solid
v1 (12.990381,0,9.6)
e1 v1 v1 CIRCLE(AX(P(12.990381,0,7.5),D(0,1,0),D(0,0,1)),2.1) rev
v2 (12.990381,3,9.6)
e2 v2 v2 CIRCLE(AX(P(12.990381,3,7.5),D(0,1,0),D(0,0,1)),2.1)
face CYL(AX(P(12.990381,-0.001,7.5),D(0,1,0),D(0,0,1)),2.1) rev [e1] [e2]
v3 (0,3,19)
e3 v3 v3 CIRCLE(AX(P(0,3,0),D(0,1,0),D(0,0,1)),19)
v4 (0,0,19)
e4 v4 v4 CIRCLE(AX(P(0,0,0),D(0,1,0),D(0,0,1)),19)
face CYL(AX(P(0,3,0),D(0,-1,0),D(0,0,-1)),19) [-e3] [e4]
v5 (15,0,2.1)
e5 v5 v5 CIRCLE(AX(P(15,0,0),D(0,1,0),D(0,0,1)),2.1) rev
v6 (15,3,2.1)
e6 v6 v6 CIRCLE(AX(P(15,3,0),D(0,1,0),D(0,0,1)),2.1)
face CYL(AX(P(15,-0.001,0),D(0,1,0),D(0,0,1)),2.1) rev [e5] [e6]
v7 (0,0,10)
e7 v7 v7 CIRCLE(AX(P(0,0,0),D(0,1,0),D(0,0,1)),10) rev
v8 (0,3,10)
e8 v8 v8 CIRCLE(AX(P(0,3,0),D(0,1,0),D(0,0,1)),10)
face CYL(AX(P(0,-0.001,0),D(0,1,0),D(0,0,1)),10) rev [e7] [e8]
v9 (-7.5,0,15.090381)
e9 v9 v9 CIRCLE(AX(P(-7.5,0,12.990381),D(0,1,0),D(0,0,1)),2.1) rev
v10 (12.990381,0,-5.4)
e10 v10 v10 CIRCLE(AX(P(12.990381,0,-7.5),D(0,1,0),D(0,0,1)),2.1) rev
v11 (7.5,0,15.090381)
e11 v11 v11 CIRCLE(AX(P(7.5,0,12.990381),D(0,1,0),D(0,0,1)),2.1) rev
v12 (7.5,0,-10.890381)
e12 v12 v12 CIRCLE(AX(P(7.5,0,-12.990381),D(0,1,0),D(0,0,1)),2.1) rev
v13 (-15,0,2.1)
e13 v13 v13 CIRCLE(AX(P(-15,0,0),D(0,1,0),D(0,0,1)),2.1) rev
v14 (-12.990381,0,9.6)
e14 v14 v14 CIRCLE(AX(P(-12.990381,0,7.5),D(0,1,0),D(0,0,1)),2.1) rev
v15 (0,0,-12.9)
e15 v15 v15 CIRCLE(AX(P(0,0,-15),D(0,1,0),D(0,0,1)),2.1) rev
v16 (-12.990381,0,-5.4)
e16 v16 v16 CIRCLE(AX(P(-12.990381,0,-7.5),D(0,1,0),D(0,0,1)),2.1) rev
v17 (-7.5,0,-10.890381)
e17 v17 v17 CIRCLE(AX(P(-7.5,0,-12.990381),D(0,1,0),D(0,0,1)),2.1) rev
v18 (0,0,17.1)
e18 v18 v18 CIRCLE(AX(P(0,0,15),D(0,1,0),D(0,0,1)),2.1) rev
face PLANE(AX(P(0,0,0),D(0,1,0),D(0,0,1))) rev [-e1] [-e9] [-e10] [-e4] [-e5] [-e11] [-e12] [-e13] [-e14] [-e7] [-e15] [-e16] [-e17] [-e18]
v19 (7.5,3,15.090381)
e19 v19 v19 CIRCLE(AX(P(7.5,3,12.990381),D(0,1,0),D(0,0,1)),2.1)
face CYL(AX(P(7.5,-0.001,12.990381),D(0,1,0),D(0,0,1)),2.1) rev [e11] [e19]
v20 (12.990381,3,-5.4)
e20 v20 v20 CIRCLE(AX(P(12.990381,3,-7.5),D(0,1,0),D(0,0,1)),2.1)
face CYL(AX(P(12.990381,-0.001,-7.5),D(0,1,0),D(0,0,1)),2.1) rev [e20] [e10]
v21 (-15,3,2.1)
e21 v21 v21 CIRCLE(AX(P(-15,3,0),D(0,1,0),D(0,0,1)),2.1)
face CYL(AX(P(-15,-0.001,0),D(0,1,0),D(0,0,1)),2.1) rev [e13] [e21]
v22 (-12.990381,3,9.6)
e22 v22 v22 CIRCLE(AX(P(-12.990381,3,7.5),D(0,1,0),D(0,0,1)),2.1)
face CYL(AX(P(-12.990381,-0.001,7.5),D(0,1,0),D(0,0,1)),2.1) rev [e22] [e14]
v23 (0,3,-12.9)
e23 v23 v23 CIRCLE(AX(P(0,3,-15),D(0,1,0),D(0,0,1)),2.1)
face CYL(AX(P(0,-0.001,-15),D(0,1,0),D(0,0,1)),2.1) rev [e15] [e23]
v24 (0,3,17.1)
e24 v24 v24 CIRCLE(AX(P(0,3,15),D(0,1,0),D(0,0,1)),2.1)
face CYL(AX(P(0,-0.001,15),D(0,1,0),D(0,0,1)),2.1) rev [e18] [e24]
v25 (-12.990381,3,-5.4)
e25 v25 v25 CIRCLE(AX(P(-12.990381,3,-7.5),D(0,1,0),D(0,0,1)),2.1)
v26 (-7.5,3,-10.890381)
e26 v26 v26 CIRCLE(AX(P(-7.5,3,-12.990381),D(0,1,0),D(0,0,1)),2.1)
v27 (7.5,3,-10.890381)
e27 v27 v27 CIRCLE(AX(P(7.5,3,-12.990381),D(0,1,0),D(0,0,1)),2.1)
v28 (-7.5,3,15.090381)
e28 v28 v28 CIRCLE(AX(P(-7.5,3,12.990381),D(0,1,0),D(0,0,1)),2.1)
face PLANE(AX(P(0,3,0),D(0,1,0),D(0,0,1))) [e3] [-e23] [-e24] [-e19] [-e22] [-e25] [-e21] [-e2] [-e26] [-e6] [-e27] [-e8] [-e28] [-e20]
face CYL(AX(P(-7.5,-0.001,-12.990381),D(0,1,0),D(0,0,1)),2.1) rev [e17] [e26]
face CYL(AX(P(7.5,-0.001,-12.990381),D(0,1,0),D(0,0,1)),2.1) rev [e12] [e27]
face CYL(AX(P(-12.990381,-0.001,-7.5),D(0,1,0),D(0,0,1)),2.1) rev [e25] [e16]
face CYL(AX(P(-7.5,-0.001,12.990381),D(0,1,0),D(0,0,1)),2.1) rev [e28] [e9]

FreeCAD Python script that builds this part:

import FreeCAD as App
import Part
import Sketcher
Q = App.Units.Quantity

doc = App.newDocument("Part")
params = doc.addObject("Spreadsheet::Sheet", "Params")
for row, (alias, value) in enumerate([
    ("sketch1_diameter", "38 mm"),
    ("pad1_length", "3 mm"),
    ("sketch2_diameter", "4.2 mm"),
    ("sketch3_diameter", "4.2 mm"),
    ("sketch4_diameter", "4.2 mm"),
    ("sketch5_diameter", "4.2 mm"),
    ("sketch6_diameter", "4.2 mm"),
    ("sketch7_diameter", "4.2 mm"),
    ("sketch8_diameter", "4.2 mm"),
    ("sketch9_diameter", "4.2 mm"),
    ("sketch10_diameter", "4.2 mm"),
    ("sketch11_diameter", "4.2 mm"),
    ("sketch12_diameter", "4.2 mm"),
    ("sketch13_diameter", "4.2 mm"),
    ("sketch14_diameter", "20 mm"),
], start=1):
    params.set(f"A{row}", alias)
    params.set(f"B{row}", "=" + value)
    params.setAlias(f"B{row}", alias)

body = doc.addObject("PartDesign::Body", "Body")

# Sketch on XZ plane
sketch1 = body.newObject("Sketcher::SketchObject", "Sketch")
sketch1.AttachmentSupport = (doc.getObject("XZ_Plane"), [""])
sketch1.MapMode = "FlatFace"
sketch1.addGeometry(Part.Circle(App.Vector(0, 0, 0), App.Vector(0, 0, 1), 19), False)
sketch1.addConstraint([
    Sketcher.Constraint("Coincident", 0, 3, -1, 1),
    Sketcher.Constraint("Diameter", 0, Q("38 mm")),
])
sketch1.setExpression("Constraints[1]", "Params.sketch1_diameter")
pad1 = body.newObject("PartDesign::Pad", "Pad")
pad1.Profile = sketch1
pad1.setExpression("Length", "Params.pad1_length")
pad1.Reversed = True

# Sketch on XZ plane
sketch2 = body.newObject("Sketcher::SketchObject", "Sketch001")
sketch2.AttachmentSupport = (doc.getObject("XZ_Plane"), [""])
sketch2.MapMode = "FlatFace"
sketch2.AttachmentOffset = App.Placement(App.Vector(0, 0, -3), App.Rotation())
sketch2.addGeometry(Part.Circle(App.Vector(0, -15, 0), App.Vector(0, 0, 1), 2.1), False)
sketch2.addConstraint([
    Sketcher.Constraint("PointOnObject", 0, 3, -2),
    Sketcher.Constraint("Diameter", 0, Q("4.2 mm")),
    Sketcher.Constraint("DistanceY", 0, 3, -1, 1, Q("15 mm")),
])
sketch2.setExpression("Constraints[1]", "Params.sketch2_diameter")
pocket1 = body.newObject("PartDesign::Pocket", "Pocket")
pocket1.Profile = sketch2
pocket1.Type = "UpToFirst"
pocket1.Reversed = True

# Sketch on XZ plane
sketch3 = body.newObject("Sketcher::SketchObject", "Sketch002")
sketch3.AttachmentSupport = (doc.getObject("XZ_Plane"), [""])
sketch3.MapMode = "FlatFace"
sketch3.AttachmentOffset = App.Placement(App.Vector(0, 0, -3), App.Rotation())
sketch3.addGeometry(Part.Circle(App.Vector(7.5, -12.990381, 0), App.Vector(0, 0, 1), 2.1), False)
sketch3.addConstraint([
    Sketcher.Constraint("Diameter", 0, Q("4.2 mm")),
    Sketcher.Constraint("DistanceX", -1, 1, 0, 3, Q("7.5 mm")),
    Sketcher.Constraint("DistanceY", 0, 3, -1, 1, Q("12.990381 mm")),
])
sketch3.setExpression("Constraints[0]", "Params.sketch3_diameter")
pocket2 = body.newObject("PartDesign::Pocket", "Pocket001")
pocket2.Profile = sketch3
pocket2.Type = "UpToFirst"
pocket2.Reversed = True

# Sketch on XZ plane
sketch4 = body.newObject("Sketcher::SketchObject", "Sketch003")
sketch4.AttachmentSupport = (doc.getObject("XZ_Plane"), [""])
sketch4.MapMode = "FlatFace"
sketch4.AttachmentOffset = App.Placement(App.Vector(0, 0, -3), App.Rotation())
sketch4.addGeometry(Part.Circle(App.Vector(12.990381, -7.5, 0), App.Vector(0, 0, 1), 2.1), False)
sketch4.addConstraint([
    Sketcher.Constraint("Diameter", 0, Q("4.2 mm")),
    Sketcher.Constraint("DistanceY", 0, 3, -1, 1, Q("7.5 mm")),
    Sketcher.Constraint("DistanceX", -1, 1, 0, 3, Q("12.990381 mm")),
])
sketch4.setExpression("Constraints[0]", "Params.sketch4_diameter")
pocket3 = body.newObject("PartDesign::Pocket", "Pocket002")
pocket3.Profile = sketch4
pocket3.Type = "UpToFirst"
pocket3.Reversed = True

# Sketch on XZ plane
sketch5 = body.newObject("Sketcher::SketchObject", "Sketch004")
sketch5.AttachmentSupport = (doc.getObject("XZ_Plane"), [""])
sketch5.MapMode = "FlatFace"
sketch5.AttachmentOffset = App.Placement(App.Vector(0, 0, -3), App.Rotation())
sketch5.addGeometry(Part.Circle(App.Vector(15, 0, 0), App.Vector(0, 0, 1), 2.1), False)
sketch5.addConstraint([
    Sketcher.Constraint("PointOnObject", 0, 3, -1),
    Sketcher.Constraint("Diameter", 0, Q("4.2 mm")),
    Sketcher.Constraint("DistanceX", -1, 1, 0, 3, Q("15 mm")),
])
sketch5.setExpression("Constraints[1]", "Params.sketch5_diameter")
pocket4 = body.newObject("PartDesign::Pocket", "Pocket003")
pocket4.Profile = sketch5
pocket4.Type = "UpToFirst"
pocket4.Reversed = True

# Sketch on XZ plane
sketch6 = body.newObject("Sketcher::SketchObject", "Sketch005")
sketch6.AttachmentSupport = (doc.getObject("XZ_Plane"), [""])
sketch6.MapMode = "FlatFace"
sketch6.AttachmentOffset = App.Placement(App.Vector(0, 0, -3), App.Rotation())
sketch6.addGeometry(Part.Circle(App.Vector(12.990381, 7.5, 0), App.Vector(0, 0, 1), 2.1), False)
sketch6.addConstraint([
    Sketcher.Constraint("Diameter", 0, Q("4.2 mm")),
    Sketcher.Constraint("DistanceY", -1, 1, 0, 3, Q("7.5 mm")),
    Sketcher.Constraint("DistanceX", -1, 1, 0, 3, Q("12.990381 mm")),
])
sketch6.setExpression("Constraints[0]", "Params.sketch6_diameter")
pocket5 = body.newObject("PartDesign::Pocket", "Pocket004")
pocket5.Profile = sketch6
pocket5.Type = "UpToFirst"
pocket5.Reversed = True

# Sketch on XZ plane
sketch7 = body.newObject("Sketcher::SketchObject", "Sketch006")
sketch7.AttachmentSupport = (doc.getObject("XZ_Plane"), [""])
sketch7.MapMode = "FlatFace"
sketch7.AttachmentOffset = App.Placement(App.Vector(0, 0, -3), App.Rotation())
sketch7.addGeometry(Part.Circle(App.Vector(7.5, 12.990381, 0), App.Vector(0, 0, 1), 2.1), False)
sketch7.addConstraint([
    Sketcher.Constraint("Diameter", 0, Q("4.2 mm")),
    Sketcher.Constraint("DistanceX", -1, 1, 0, 3, Q("7.5 mm")),
    Sketcher.Constraint("DistanceY", -1, 1, 0, 3, Q("12.990381 mm")),
])
sketch7.setExpression("Constraints[0]", "Params.sketch7_diameter")
pocket6 = body.newObject("PartDesign::Pocket", "Pocket005")
pocket6.Profile = sketch7
pocket6.Type = "UpToFirst"
pocket6.Reversed = True

# Sketch on XZ plane
sketch8 = body.newObject("Sketcher::SketchObject", "Sketch007")
sketch8.AttachmentSupport = (doc.getObject("XZ_Plane"), [""])
sketch8.MapMode = "FlatFace"
sketch8.AttachmentOffset = App.Placement(App.Vector(0, 0, -3), App.Rotation())
sketch8.addGeometry(Part.Circle(App.Vector(0, 15, 0), App.Vector(0, 0, 1), 2.1), False)
sketch8.addConstraint([
    Sketcher.Constraint("PointOnObject", 0, 3, -2),
    Sketcher.Constraint("Diameter", 0, Q("4.2 mm")),
    Sketcher.Constraint("DistanceY", -1, 1, 0, 3, Q("15 mm")),
])
sketch8.setExpression("Constraints[1]", "Params.sketch8_diameter")
pocket7 = body.newObject("PartDesign::Pocket", "Pocket006")
pocket7.Profile = sketch8
pocket7.Type = "UpToFirst"
pocket7.Reversed = True

# Sketch on XZ plane
sketch9 = body.newObject("Sketcher::SketchObject", "Sketch008")
sketch9.AttachmentSupport = (doc.getObject("XZ_Plane"), [""])
sketch9.MapMode = "FlatFace"
sketch9.AttachmentOffset = App.Placement(App.Vector(0, 0, -3), App.Rotation())
sketch9.addGeometry(Part.Circle(App.Vector(-7.5, 12.990381, 0), App.Vector(0, 0, 1), 2.1), False)
sketch9.addConstraint([
    Sketcher.Constraint("Diameter", 0, Q("4.2 mm")),
    Sketcher.Constraint("DistanceX", 0, 3, -1, 1, Q("7.5 mm")),
    Sketcher.Constraint("DistanceY", -1, 1, 0, 3, Q("12.990381 mm")),
])
sketch9.setExpression("Constraints[0]", "Params.sketch9_diameter")
pocket8 = body.newObject("PartDesign::Pocket", "Pocket007")
pocket8.Profile = sketch9
pocket8.Type = "UpToFirst"
pocket8.Reversed = True

# Sketch on XZ plane
sketch10 = body.newObject("Sketcher::SketchObject", "Sketch009")
sketch10.AttachmentSupport = (doc.getObject("XZ_Plane"), [""])
sketch10.MapMode = "FlatFace"
sketch10.AttachmentOffset = App.Placement(App.Vector(0, 0, -3), App.Rotation())
sketch10.addGeometry(Part.Circle(App.Vector(-12.990381, 7.5, 0), App.Vector(0, 0, 1), 2.1), False)
sketch10.addConstraint([
    Sketcher.Constraint("Diameter", 0, Q("4.2 mm")),
    Sketcher.Constraint("DistanceY", -1, 1, 0, 3, Q("7.5 mm")),
    Sketcher.Constraint("DistanceX", 0, 3, -1, 1, Q("12.990381 mm")),
])
sketch10.setExpression("Constraints[0]", "Params.sketch10_diameter")
pocket9 = body.newObject("PartDesign::Pocket", "Pocket008")
pocket9.Profile = sketch10
pocket9.Type = "UpToFirst"
pocket9.Reversed = True

# Sketch on XZ plane
sketch11 = body.newObject("Sketcher::SketchObject", "Sketch010")
sketch11.AttachmentSupport = (doc.getObject("XZ_Plane"), [""])
sketch11.MapMode = "FlatFace"
sketch11.AttachmentOffset = App.Placement(App.Vector(0, 0, -3), App.Rotation())
sketch11.addGeometry(Part.Circle(App.Vector(-15, 0, 0), App.Vector(0, 0, 1), 2.1), False)
sketch11.addConstraint([
    Sketcher.Constraint("PointOnObject", 0, 3, -1),
    Sketcher.Constraint("Diameter", 0, Q("4.2 mm")),
    Sketcher.Constraint("DistanceX", 0, 3, -1, 1, Q("15 mm")),
])
sketch11.setExpression("Constraints[1]", "Params.sketch11_diameter")
pocket10 = body.newObject("PartDesign::Pocket", "Pocket009")
pocket10.Profile = sketch11
pocket10.Type = "UpToFirst"
pocket10.Reversed = True

# Sketch on XZ plane
sketch12 = body.newObject("Sketcher::SketchObject", "Sketch011")
sketch12.AttachmentSupport = (doc.getObject("XZ_Plane"), [""])
sketch12.MapMode = "FlatFace"
sketch12.AttachmentOffset = App.Placement(App.Vector(0, 0, -3), App.Rotation())
sketch12.addGeometry(Part.Circle(App.Vector(-12.990381, -7.5, 0), App.Vector(0, 0, 1), 2.1), False)
sketch12.addConstraint([
    Sketcher.Constraint("Diameter", 0, Q("4.2 mm")),
    Sketcher.Constraint("DistanceY", 0, 3, -1, 1, Q("7.5 mm")),
    Sketcher.Constraint("DistanceX", 0, 3, -1, 1, Q("12.990381 mm")),
])
sketch12.setExpression("Constraints[0]", "Params.sketch12_diameter")
pocket11 = body.newObject("PartDesign::Pocket", "Pocket010")
pocket11.Profile = sketch12
pocket11.Type = "UpToFirst"
pocket11.Reversed = True

# Sketch on XZ plane
sketch13 = body.newObject("Sketcher::SketchObject", "Sketch012")
sketch13.AttachmentSupport = (doc.getObject("XZ_Plane"), [""])
sketch13.MapMode = "FlatFace"
sketch13.AttachmentOffset = App.Placement(App.Vector(0, 0, -3), App.Rotation())
sketch13.addGeometry(Part.Circle(App.Vector(-7.5, -12.990381, 0), App.Vector(0, 0, 1), 2.1), False)
sketch13.addConstraint([
    Sketcher.Constraint("Diameter", 0, Q("4.2 mm")),
    Sketcher.Constraint("DistanceX", 0, 3, -1, 1, Q("7.5 mm")),
    Sketcher.Constraint("DistanceY", 0, 3, -1, 1, Q("12.990381 mm")),
])
sketch13.setExpression("Constraints[0]", "Params.sketch13_diameter")
pocket12 = body.newObject("PartDesign::Pocket", "Pocket011")
pocket12.Profile = sketch13
pocket12.Type = "UpToFirst"
pocket12.Reversed = True

# Sketch on XZ plane
sketch14 = body.newObject("Sketcher::SketchObject", "Sketch013")
sketch14.AttachmentSupport = (doc.getObject("XZ_Plane"), [""])
sketch14.MapMode = "FlatFace"
sketch14.AttachmentOffset = App.Placement(App.Vector(0, 0, -3), App.Rotation())
sketch14.addGeometry(Part.Circle(App.Vector(0, 0, 0), App.Vector(0, 0, 1), 10), False)
sketch14.addConstraint([
    Sketcher.Constraint("Coincident", 0, 3, -1, 1),
    Sketcher.Constraint("Diameter", 0, Q("20 mm")),
])
sketch14.setExpression("Constraints[1]", "Params.sketch14_diameter")
pocket13 = body.newObject("PartDesign::Pocket", "Pocket012")
pocket13.Profile = sketch14
pocket13.Type = "UpToFirst"
pocket13.Reversed = True

doc.recompute()
